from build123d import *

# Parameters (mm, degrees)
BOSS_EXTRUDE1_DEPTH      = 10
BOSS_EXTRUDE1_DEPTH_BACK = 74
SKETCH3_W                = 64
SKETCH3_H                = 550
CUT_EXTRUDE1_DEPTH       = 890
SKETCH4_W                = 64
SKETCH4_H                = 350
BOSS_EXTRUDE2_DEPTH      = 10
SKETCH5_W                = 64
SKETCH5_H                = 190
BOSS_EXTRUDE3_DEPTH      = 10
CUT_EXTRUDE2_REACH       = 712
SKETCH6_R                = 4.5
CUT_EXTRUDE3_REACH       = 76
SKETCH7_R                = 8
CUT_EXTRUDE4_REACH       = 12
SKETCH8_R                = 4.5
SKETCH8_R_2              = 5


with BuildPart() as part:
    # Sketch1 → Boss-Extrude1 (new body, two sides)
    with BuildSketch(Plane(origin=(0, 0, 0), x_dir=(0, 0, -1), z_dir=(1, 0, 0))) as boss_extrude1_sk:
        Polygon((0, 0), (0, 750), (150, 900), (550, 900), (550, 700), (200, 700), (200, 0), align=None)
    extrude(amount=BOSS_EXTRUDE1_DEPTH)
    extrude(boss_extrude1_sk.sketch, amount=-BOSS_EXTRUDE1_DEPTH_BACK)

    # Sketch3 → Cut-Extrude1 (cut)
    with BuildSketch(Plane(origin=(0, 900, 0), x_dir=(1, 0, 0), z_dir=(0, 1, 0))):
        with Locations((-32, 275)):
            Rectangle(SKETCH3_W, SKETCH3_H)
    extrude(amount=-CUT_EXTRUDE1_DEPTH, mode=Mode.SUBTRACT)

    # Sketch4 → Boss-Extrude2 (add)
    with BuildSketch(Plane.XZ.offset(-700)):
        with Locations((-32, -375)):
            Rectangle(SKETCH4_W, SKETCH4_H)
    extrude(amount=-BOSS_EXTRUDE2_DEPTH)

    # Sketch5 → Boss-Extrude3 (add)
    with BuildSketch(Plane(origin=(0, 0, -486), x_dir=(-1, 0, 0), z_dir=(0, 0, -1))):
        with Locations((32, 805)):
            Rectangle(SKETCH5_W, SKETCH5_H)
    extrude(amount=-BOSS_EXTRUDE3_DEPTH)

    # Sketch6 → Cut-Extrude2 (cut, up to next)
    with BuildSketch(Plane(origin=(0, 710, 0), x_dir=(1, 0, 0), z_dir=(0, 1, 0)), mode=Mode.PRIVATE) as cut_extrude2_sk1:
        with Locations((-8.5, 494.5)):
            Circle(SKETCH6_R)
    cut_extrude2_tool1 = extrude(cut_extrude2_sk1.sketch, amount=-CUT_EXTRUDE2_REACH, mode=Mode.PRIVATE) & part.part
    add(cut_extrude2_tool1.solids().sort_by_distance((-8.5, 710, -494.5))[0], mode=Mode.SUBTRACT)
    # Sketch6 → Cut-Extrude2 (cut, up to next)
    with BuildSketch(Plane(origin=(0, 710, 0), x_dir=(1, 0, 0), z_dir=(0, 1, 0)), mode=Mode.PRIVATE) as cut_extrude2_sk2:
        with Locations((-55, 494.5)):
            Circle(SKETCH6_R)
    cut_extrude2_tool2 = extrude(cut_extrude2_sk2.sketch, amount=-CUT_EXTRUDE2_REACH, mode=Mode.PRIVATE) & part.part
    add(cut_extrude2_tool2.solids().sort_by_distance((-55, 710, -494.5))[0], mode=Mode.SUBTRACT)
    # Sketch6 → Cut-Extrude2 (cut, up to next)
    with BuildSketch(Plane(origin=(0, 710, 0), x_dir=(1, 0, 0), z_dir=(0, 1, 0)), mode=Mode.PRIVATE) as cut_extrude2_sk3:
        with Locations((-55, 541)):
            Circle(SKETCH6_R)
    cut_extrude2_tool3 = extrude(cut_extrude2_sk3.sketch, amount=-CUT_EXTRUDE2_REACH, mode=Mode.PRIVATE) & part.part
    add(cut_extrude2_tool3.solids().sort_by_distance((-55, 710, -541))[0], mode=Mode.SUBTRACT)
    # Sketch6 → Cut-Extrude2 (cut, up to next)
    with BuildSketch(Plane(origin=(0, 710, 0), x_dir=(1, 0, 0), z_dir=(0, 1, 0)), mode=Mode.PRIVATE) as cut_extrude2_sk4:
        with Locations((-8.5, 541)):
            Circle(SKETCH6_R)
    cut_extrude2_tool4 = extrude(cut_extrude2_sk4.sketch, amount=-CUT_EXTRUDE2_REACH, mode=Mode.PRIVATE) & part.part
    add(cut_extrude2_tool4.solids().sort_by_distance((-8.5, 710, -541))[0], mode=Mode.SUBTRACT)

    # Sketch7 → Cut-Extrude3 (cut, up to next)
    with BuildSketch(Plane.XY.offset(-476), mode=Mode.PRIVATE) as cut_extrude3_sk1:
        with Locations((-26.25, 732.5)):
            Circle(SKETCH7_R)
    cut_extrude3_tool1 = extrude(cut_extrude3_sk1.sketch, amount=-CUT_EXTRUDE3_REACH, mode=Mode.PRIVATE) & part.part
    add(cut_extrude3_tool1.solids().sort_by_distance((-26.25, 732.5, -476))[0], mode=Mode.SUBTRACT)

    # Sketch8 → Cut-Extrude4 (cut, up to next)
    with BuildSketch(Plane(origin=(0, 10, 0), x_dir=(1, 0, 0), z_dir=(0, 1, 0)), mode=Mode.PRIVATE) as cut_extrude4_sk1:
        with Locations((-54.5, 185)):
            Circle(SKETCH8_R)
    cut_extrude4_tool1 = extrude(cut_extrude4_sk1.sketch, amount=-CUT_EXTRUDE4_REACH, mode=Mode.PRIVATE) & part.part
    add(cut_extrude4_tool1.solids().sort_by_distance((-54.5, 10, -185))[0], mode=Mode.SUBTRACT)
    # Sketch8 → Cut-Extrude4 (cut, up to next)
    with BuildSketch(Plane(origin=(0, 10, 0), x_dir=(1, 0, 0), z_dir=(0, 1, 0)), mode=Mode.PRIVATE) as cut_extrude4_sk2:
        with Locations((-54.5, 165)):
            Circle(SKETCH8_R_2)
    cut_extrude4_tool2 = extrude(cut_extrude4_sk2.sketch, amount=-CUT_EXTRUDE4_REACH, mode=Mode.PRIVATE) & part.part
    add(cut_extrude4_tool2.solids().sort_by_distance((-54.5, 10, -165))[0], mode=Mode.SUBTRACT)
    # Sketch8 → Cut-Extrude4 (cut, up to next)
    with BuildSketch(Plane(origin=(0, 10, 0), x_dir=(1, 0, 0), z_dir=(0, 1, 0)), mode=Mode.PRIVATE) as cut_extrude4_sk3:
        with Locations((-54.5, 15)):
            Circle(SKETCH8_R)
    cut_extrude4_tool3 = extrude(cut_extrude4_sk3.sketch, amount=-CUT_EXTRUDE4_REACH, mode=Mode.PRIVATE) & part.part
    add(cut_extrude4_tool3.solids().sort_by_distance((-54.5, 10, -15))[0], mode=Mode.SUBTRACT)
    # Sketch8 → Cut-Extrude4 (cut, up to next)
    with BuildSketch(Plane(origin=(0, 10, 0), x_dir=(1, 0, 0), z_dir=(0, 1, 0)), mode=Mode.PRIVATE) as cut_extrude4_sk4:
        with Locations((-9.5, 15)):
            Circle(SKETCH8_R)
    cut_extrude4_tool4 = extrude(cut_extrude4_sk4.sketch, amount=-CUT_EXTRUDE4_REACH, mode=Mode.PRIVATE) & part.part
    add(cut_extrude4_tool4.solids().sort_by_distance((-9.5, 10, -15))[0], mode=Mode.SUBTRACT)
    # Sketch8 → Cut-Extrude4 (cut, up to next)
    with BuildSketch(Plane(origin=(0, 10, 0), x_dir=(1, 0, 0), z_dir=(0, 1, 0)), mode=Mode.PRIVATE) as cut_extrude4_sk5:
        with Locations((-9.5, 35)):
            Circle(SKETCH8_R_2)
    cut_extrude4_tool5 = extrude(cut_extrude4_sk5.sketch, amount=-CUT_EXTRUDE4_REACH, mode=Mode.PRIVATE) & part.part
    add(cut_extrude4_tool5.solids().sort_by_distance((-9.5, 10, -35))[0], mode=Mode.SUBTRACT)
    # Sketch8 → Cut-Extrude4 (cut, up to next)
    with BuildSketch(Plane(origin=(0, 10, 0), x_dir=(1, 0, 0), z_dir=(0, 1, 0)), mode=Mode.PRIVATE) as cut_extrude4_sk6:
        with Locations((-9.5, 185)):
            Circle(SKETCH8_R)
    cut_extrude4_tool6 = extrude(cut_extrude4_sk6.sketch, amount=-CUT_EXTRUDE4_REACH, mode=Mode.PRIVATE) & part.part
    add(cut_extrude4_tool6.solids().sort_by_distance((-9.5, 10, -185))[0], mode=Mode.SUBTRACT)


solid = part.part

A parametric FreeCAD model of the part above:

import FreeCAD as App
import Part
import Sketcher

V = App.Vector
Q = App.Units.Quantity


def add_polygon(sketch, points):
    """Adds a closed chain of lines whose ends are joined by coincident constraints."""
    first, n = sketch.GeometryCount, len(points)
    for a, b in zip(points, points[1:] + points[:1]):
        sketch.addGeometry(Part.LineSegment(App.Vector(*a, 0), App.Vector(*b, 0)), False)
    for i in range(n):
        sketch.addConstraint(Sketcher.Constraint("Coincident", first + i, 2, first + (i + 1) % n, 1))

doc = App.newDocument("Part")
body = doc.addObject("PartDesign::Body", "Body")

sketch1 = body.newObject("Sketcher::SketchObject", "Sketch")
sketch1.AttachmentSupport = (doc.getObject("YZ_Plane"), [""])
sketch1.MapMode = "FlatFace"
add_polygon(sketch1, [(750, 0), (0, 0), (0, -200), (700, -200), (700, -550), (900, -550), (900, -150)])
sketch1.addConstraint([
    Sketcher.Constraint("Horizontal", 0),
    Sketcher.Constraint("Vertical", 1),
    Sketcher.Constraint("Horizontal", 2),
    Sketcher.Constraint("Vertical", 3),
    Sketcher.Constraint("Horizontal", 4),
    Sketcher.Constraint("Vertical", 5),
    Sketcher.Constraint("Coincident", 0, 2, -1, 1),
    Sketcher.Constraint("Equal", 4, 1),
    Sketcher.Constraint("DistanceX", 0, 2, 0, 1, Q("750 mm")),
    Sketcher.Constraint("DistanceX", 2, 1, 2, 2, Q("700 mm")),
    Sketcher.Constraint("DistanceX", 4, 1, 4, 2, Q("200 mm")),
    Sketcher.Constraint("DistanceY", 3, 2, 3, 1, Q("350 mm")),
    Sketcher.Constraint("DistanceY", 5, 1, 5, 2, Q("400 mm")),
])
pad1 = body.newObject("PartDesign::Pad", "Pad")
pad1.Profile = sketch1
pad1.Type = "TwoLengths"
pad1.Length = 10
pad1.Length2 = 74

sketch2 = body.newObject("Sketcher::SketchObject", "Sketch001")
sketch2.AttachmentSupport = (doc.getObject("XZ_Plane"), [""])
sketch2.MapMode = "FlatFace"
sketch2.AttachmentOffset = App.Placement(V(0, 0, -900), App.Rotation())
add_polygon(sketch2, [(-64, -550), (-64, 0), (0, 0), (0, -550)])
sketch2.addConstraint([
    Sketcher.Constraint("Vertical", 0),
    Sketcher.Constraint("Horizontal", 1),
    Sketcher.Constraint("Vertical", 2),
    Sketcher.Constraint("Horizontal", 3),
    Sketcher.Constraint("Coincident", 1, 2, -1, 1),
    Sketcher.Constraint("DistanceX", 1, 1, 1, 2, Q("64 mm")),
    Sketcher.Constraint("DistanceY", 0, 1, 0, 2, Q("550 mm")),
])
pocket1 = body.newObject("PartDesign::Pocket", "Pocket")
pocket1.Profile = sketch2
pocket1.Length = 890
pocket1.Reversed = True

sketch3 = body.newObject("Sketcher::SketchObject", "Sketch002")
sketch3.AttachmentSupport = (doc.getObject("XZ_Plane"), [""])
sketch3.MapMode = "FlatFace"
sketch3.AttachmentOffset = App.Placement(V(0, 0, -700), App.Rotation())
add_polygon(sketch3, [(-64, -200), (-64, -550), (0, -550), (0, -200)])
sketch3.addConstraint([
    Sketcher.Constraint("Vertical", 0),
    Sketcher.Constraint("Horizontal", 1),
    Sketcher.Constraint("Vertical", 2),
    Sketcher.Constraint("Horizontal", 3),
    Sketcher.Constraint("PointOnObject", 1, 2, -2),
    Sketcher.Constraint("DistanceX", 1, 1, 1, 2, Q("64 mm")),
    Sketcher.Constraint("DistanceY", 0, 2, 0, 1, Q("350 mm")),
    Sketcher.Constraint("DistanceY", 0, 2, -1, 1, Q("550 mm")),
])
pad2 = body.newObject("PartDesign::Pad", "Pad001")
pad2.Profile = sketch3
pad2.Length = 10
pad2.Reversed = True

sketch4 = body.newObject("Sketcher::SketchObject", "Sketch003")
sketch4.AttachmentSupport = (doc.getObject("XY_Plane"), [""])
sketch4.MapMode = "FlatFace"
sketch4.AttachmentOffset = App.Placement(V(0, 0, -486), App.Rotation())
add_polygon(sketch4, [(0, 900), (0, 710), (-64, 710), (-64, 900)])
sketch4.addConstraint([
    Sketcher.Constraint("Vertical", 0),
    Sketcher.Constraint("Horizontal", 1),
    Sketcher.Constraint("Vertical", 2),
    Sketcher.Constraint("Horizontal", 3),
    Sketcher.Constraint("PointOnObject", 0, 2, -2),
    Sketcher.Constraint("DistanceX", 1, 2, 1, 1, Q("64 mm")),
    Sketcher.Constraint("DistanceY", 0, 2, 0, 1, Q("190 mm")),
    Sketcher.Constraint("DistanceY", -1, 1, 0, 2, Q("710 mm")),
])
pad3 = body.newObject("PartDesign::Pad", "Pad002")
pad3.Profile = sketch4
pad3.Length = 10

sketch5 = body.newObject("Sketcher::SketchObject", "Sketch004")
sketch5.AttachmentSupport = (doc.getObject("XZ_Plane"), [""])
sketch5.MapMode = "FlatFace"
sketch5.AttachmentOffset = App.Placement(V(0, 0, -710), App.Rotation())
sketch5.addGeometry(Part.Circle(V(-8.5, -494.5, 0), V(0, 0, 1), 4.5), False)
sketch5.addConstraint([
    Sketcher.Constraint("Diameter", 0, Q("9 mm")),
    Sketcher.Constraint("DistanceX", 0, 3, -1, 1, Q("8.5 mm")),
    Sketcher.Constraint("DistanceY", 0, 3, -1, 1, Q("494.5 mm")),
])
pocket2 = body.newObject("PartDesign::Pocket", "Pocket001")
pocket2.Profile = sketch5
pocket2.Type = "UpToFirst"
pocket2.Reversed = True

sketch6 = body.newObject("Sketcher::SketchObject", "Sketch005")
sketch6.AttachmentSupport = (doc.getObject("XZ_Plane"), [""])
sketch6.MapMode = "FlatFace"
sketch6.AttachmentOffset = App.Placement(V(0, 0, -710), App.Rotation())
sketch6.addGeometry(Part.Circle(V(-55, -494.5, 0), V(0, 0, 1), 4.5), False)
sketch6.addConstraint([
    Sketcher.Constraint("Diameter", 0, Q("9 mm")),
    Sketcher.Constraint("DistanceX", 0, 3, -1, 1, Q("55 mm")),
    Sketcher.Constraint("DistanceY", 0, 3, -1, 1, Q("494.5 mm")),
])
pocket3 = body.newObject("PartDesign::Pocket", "Pocket002")
pocket3.Profile = sketch6
pocket3.Type = "UpToFirst"
pocket3.Reversed = True

sketch7 = body.newObject("Sketcher::SketchObject", "Sketch006")
sketch7.AttachmentSupport = (doc.getObject("XZ_Plane"), [""])
sketch7.MapMode = "FlatFace"
sketch7.AttachmentOffset = App.Placement(V(0, 0, -710), App.Rotation())
sketch7.addGeometry(Part.Circle(V(-55, -541, 0), V(0, 0, 1), 4.5), False)
sketch7.addConstraint([
    Sketcher.Constraint("Diameter", 0, Q("9 mm")),
    Sketcher.Constraint("DistanceX", 0, 3, -1, 1, Q("55 mm")),
    Sketcher.Constraint("DistanceY", 0, 3, -1, 1, Q("541 mm")),
])
pocket4 = body.newObject("PartDesign::Pocket", "Pocket003")
pocket4.Profile = sketch7
pocket4.Type = "UpToFirst"
pocket4.Reversed = True

sketch8 = body.newObject("Sketcher::SketchObject", "Sketch007")
sketch8.AttachmentSupport = (doc.getObject("XZ_Plane"), [""])
sketch8.MapMode = "FlatFace"
sketch8.AttachmentOffset = App.Placement(V(0, 0, -710), App.Rotation())
sketch8.addGeometry(Part.Circle(V(-8.5, -541, 0), V(0, 0, 1), 4.5), False)
sketch8.addConstraint([
    Sketcher.Constraint("Diameter", 0, Q("9 mm")),
    Sketcher.Constraint("DistanceY", 0, 3, -1, 1, Q("541 mm")),
    Sketcher.Constraint("DistanceX", 0, 3, -1, 1, Q("8.5 mm")),
])
pocket5 = body.newObject("PartDesign::Pocket", "Pocket004")
pocket5.Profile = sketch8
pocket5.Type = "UpToFirst"
pocket5.Reversed = True

sketch9 = body.newObject("Sketcher::SketchObject", "Sketch008")
sketch9.AttachmentSupport = (doc.getObject("XY_Plane"), [""])
sketch9.MapMode = "FlatFace"
sketch9.AttachmentOffset = App.Placement(V(0, 0, -476), App.Rotation())
sketch9.addGeometry(Part.Circle(V(-26, 732, 0), V(0, 0, 1), 8), False)
sketch9.addConstraint([
    Sketcher.Constraint("Diameter", 0, Q("16 mm")),
    Sketcher.Constraint("DistanceY", -1, 1, 0, 3, Q("732.5 mm")),
    Sketcher.Constraint("DistanceX", 0, 3, -1, 1, Q("26.25 mm")),
])
pocket6 = body.newObject("PartDesign::Pocket", "Pocket005")
pocket6.Profile = sketch9
pocket6.Type = "UpToFirst"

sketch10 = body.newObject("Sketcher::SketchObject", "Sketch009")
sketch10.AttachmentSupport = (doc.getObject("XZ_Plane"), [""])
sketch10.MapMode = "FlatFace"
sketch10.AttachmentOffset = App.Placement(V(0, 0, -10), App.Rotation())
sketch10.addGeometry(Part.Circle(V(-54.5, -185, 0), V(0, 0, 1), 4.5), False)
sketch10.addConstraint([
    Sketcher.Constraint("Diameter", 0, Q("9 mm")),
    Sketcher.Constraint("DistanceY", 0, 3, -1, 1, Q("185 mm")),
    Sketcher.Constraint("DistanceX", 0, 3, -1, 1, Q("54.5 mm")),
])
pocket7 = body.newObject("PartDesign::Pocket", "Pocket006")
pocket7.Profile = sketch10
pocket7.Type = "UpToFirst"
pocket7.Reversed = True

sketch11 = body.newObject("Sketcher::SketchObject", "Sketch010")
sketch11.AttachmentSupport = (doc.getObject("XZ_Plane"), [""])
sketch11.MapMode = "FlatFace"
sketch11.AttachmentOffset = App.Placement(V(0, 0, -10), App.Rotation())
sketch11.addGeometry(Part.Circle(V(-54, -165, 0), V(0, 0, 1), 5), False)
sketch11.addConstraint([
    Sketcher.Constraint("Diameter", 0, Q("10 mm")),
    Sketcher.Constraint("DistanceY", 0, 3, -1, 1, Q("165 mm")),
    Sketcher.Constraint("DistanceX", 0, 3, -1, 1, Q("54.5 mm")),
])
pocket8 = body.newObject("PartDesign::Pocket", "Pocket007")
pocket8.Profile = sketch11
pocket8.Type = "UpToFirst"
pocket8.Reversed = True

sketch12 = body.newObject("Sketcher::SketchObject", "Sketch011")
sketch12.AttachmentSupport = (doc.getObject("XZ_Plane"), [""])
sketch12.MapMode = "FlatFace"
sketch12.AttachmentOffset = App.Placement(V(0, 0, -10), App.Rotation())
sketch12.addGeometry(Part.Circle(V(-54.5, -15, 0), V(0, 0, 1), 4.5), False)
sketch12.addConstraint([
    Sketcher.Constraint("Diameter", 0, Q("9 mm")),
    Sketcher.Constraint("DistanceY", 0, 3, -1, 1, Q("15 mm")),
    Sketcher.Constraint("DistanceX", 0, 3, -1, 1, Q("54.5 mm")),
])
pocket9 = body.newObject("PartDesign::Pocket", "Pocket008")
pocket9.Profile = sketch12
pocket9.Type = "UpToFirst"
pocket9.Reversed = True

sketch13 = body.newObject("Sketcher::SketchObject", "Sketch012")
sketch13.AttachmentSupport = (doc.getObject("XZ_Plane"), [""])
sketch13.MapMode = "FlatFace"
sketch13.AttachmentOffset = App.Placement(V(0, 0, -10), App.Rotation())
sketch13.addGeometry(Part.Circle(V(-9.5, -15, 0), V(0, 0, 1), 4.5), False)
sketch13.addConstraint([
    Sketcher.Constraint("Diameter", 0, Q("9 mm")),
    Sketcher.Constraint("DistanceY", 0, 3, -1, 1, Q("15 mm")),
    Sketcher.Constraint("DistanceX", 0, 3, -1, 1, Q("9.5 mm")),
])
pocket10 = body.newObject("PartDesign::Pocket", "Pocket009")
pocket10.Profile = sketch13
pocket10.Type = "UpToFirst"
pocket10.Reversed = True

sketch14 = body.newObject("Sketcher::SketchObject", "Sketch013")
sketch14.AttachmentSupport = (doc.getObject("XZ_Plane"), [""])
sketch14.MapMode = "FlatFace"
sketch14.AttachmentOffset = App.Placement(V(0, 0, -10), App.Rotation())
sketch14.addGeometry(Part.Circle(V(-10, -35, 0), V(0, 0, 1), 5), False)
sketch14.addConstraint([
    Sketcher.Constraint("Diameter", 0, Q("10 mm")),
    Sketcher.Constraint("DistanceY", 0, 3, -1, 1, Q("35 mm")),
    Sketcher.Constraint("DistanceX", 0, 3, -1, 1, Q("9.5 mm")),
])
pocket11 = body.newObject("PartDesign::Pocket", "Pocket010")
pocket11.Profile = sketch14
pocket11.Type = "UpToFirst"
pocket11.Reversed = True

sketch15 = body.newObject("Sketcher::SketchObject", "Sketch014")
sketch15.AttachmentSupport = (doc.getObject("XZ_Plane"), [""])
sketch15.MapMode = "FlatFace"
sketch15.AttachmentOffset = App.Placement(V(0, 0, -10), App.Rotation())
sketch15.addGeometry(Part.Circle(V(-9.5, -185, 0), V(0, 0, 1), 4.5), False)
sketch15.addConstraint([
    Sketcher.Constraint("Diameter", 0, Q("9 mm")),
    Sketcher.Constraint("DistanceY", 0, 3, -1, 1, Q("185 mm")),
    Sketcher.Constraint("DistanceX", 0, 3, -1, 1, Q("9.5 mm")),
])
pocket12 = body.newObject("PartDesign::Pocket", "Pocket011")
pocket12.Profile = sketch15
pocket12.Type = "UpToFirst"
pocket12.Reversed = True

doc.recompute()
